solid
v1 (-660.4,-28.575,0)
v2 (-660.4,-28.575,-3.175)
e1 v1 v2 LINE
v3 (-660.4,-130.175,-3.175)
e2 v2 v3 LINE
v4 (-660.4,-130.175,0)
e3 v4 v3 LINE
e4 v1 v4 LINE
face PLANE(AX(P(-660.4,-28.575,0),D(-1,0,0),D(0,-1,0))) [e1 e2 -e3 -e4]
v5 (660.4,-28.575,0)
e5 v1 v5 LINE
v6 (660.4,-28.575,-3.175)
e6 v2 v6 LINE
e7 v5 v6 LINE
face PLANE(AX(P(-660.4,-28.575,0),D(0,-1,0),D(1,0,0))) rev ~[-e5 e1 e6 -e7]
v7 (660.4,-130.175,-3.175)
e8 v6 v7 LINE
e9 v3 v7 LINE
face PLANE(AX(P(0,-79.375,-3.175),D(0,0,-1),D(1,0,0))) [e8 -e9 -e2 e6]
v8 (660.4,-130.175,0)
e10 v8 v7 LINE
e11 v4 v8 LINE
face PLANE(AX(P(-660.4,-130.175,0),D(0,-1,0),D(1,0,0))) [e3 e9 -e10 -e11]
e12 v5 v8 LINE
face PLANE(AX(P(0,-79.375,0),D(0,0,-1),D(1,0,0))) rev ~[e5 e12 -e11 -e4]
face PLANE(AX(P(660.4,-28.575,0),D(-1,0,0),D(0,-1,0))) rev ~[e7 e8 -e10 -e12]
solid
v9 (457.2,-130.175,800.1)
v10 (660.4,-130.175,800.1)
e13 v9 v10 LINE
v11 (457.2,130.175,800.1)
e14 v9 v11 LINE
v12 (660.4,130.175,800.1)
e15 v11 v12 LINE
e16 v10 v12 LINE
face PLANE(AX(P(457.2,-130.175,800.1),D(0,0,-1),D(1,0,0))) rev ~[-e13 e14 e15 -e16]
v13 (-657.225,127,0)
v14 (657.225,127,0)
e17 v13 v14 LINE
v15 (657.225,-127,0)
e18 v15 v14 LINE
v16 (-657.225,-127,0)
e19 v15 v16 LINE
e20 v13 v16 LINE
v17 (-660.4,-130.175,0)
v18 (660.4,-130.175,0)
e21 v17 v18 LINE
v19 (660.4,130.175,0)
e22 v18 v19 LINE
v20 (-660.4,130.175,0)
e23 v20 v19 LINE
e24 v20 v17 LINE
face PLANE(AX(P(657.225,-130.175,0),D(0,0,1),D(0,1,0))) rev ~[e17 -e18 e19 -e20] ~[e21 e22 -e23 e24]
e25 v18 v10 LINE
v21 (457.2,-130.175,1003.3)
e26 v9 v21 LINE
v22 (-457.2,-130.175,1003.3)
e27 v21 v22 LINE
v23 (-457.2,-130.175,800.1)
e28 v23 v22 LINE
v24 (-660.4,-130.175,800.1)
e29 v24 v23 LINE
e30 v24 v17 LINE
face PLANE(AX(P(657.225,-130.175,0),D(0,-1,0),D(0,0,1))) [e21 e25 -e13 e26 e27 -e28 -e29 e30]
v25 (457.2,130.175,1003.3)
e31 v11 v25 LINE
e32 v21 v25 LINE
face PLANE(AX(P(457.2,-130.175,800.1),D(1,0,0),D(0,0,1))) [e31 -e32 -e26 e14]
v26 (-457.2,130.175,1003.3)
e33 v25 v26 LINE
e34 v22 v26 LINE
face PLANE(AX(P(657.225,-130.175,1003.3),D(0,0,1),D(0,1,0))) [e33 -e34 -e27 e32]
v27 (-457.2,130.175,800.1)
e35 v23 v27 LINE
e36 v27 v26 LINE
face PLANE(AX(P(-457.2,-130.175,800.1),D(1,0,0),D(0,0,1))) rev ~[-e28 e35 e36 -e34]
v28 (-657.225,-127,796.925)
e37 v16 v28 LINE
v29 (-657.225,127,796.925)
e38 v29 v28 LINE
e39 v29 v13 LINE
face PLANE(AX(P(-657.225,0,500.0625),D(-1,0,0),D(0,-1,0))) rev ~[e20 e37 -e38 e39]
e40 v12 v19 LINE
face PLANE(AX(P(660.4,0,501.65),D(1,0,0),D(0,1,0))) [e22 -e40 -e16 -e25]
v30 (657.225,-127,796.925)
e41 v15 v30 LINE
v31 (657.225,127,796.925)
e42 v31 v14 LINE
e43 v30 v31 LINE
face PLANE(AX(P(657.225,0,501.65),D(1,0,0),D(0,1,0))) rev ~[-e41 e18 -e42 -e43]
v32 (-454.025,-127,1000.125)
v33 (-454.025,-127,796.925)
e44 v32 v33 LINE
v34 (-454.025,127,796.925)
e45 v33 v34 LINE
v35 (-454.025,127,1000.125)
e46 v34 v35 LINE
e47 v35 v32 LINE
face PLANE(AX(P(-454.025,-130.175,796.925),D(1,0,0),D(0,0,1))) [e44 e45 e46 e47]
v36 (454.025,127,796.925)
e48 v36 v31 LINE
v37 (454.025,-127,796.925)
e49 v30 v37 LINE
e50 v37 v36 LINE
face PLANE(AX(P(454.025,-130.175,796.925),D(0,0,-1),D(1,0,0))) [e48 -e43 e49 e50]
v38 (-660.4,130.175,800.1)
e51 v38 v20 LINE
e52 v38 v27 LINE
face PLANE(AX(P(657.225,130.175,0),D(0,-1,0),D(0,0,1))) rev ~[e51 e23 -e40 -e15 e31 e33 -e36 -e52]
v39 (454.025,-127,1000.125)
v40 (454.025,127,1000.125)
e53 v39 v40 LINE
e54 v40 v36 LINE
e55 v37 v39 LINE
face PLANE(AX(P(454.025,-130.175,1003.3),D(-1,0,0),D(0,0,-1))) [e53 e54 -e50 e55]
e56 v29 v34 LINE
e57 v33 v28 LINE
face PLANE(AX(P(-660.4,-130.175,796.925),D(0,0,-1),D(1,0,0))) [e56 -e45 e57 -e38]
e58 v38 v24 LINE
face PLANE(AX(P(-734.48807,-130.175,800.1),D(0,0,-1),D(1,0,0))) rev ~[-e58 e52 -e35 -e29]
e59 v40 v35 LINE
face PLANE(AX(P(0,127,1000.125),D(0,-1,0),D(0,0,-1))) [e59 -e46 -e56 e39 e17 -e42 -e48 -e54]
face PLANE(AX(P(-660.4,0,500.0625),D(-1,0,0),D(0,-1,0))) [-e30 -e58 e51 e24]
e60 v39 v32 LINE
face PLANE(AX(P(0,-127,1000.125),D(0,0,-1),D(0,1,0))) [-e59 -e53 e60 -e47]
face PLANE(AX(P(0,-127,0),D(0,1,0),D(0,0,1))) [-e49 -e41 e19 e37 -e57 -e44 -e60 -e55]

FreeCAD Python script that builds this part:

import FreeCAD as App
import Part
import Sketcher

V = App.Vector
Q = App.Units.Quantity


def add_polygon(sketch, points):
    """Adds a closed chain of lines whose ends are joined by coincident constraints."""
    first, n = sketch.GeometryCount, len(points)
    for a, b in zip(points, points[1:] + points[:1]):
        sketch.addGeometry(Part.LineSegment(App.Vector(*a, 0), App.Vector(*b, 0)), False)
    for i in range(n):
        sketch.addConstraint(Sketcher.Constraint("Coincident", first + i, 2, first + (i + 1) % n, 1))

doc = App.newDocument("Part")
body = doc.addObject("PartDesign::Body", "Body")

# Sketch on YZ plane
sketch1 = body.newObject("Sketcher::SketchObject", "Sketch")
sketch1.AttachmentSupport = (doc.getObject("YZ_Plane"), [""])
sketch1.MapMode = "FlatFace"
add_polygon(sketch1, [(127, 1000.1), (127, 0), (130.2, 0), (130.2, 1003.3), (-130.2, 1003.3), (-130.2, 0), (-127, 0), (-127, 1000.1)])  # lines 0-7
sketch1.addConstraint(Sketcher.Constraint("Vertical", 0))
sketch1.addConstraint(Sketcher.Constraint("Horizontal", 1))
sketch1.addConstraint(Sketcher.Constraint("Vertical", 2))
sketch1.addConstraint(Sketcher.Constraint("Horizontal", 3))
sketch1.addConstraint(Sketcher.Constraint("Vertical", 4))
sketch1.addConstraint(Sketcher.Constraint("Horizontal", 5))
sketch1.addConstraint(Sketcher.Constraint("Vertical", 6))
sketch1.addConstraint(Sketcher.Constraint("Horizontal", 7))
sketch1.addConstraint(Sketcher.Constraint("Symmetric", 1, 2, 4, 2, -1, 1))
sketch1.addConstraint(Sketcher.Constraint("Symmetric", 0, 2, 5, 2, -2))
sketch1.addConstraint(Sketcher.Constraint("DistanceX", 7, 1, 7, 2, Q("10 in")))
sketch1.addConstraint(Sketcher.Constraint("DistanceY", 2, 1, 2, 2, Q("39.5 in")))
sketch1.addConstraint(Sketcher.Constraint("DistanceX", 3, 2, 3, 1, Q("10.25 in")))
sketch1.addConstraint(Sketcher.Constraint("DistanceY", 0, 2, 0, 1, Q("39.375 in")))
pad1 = body.newObject("PartDesign::Pad", "Pad")
pad1.Profile = sketch1
pad1.Length = Q("51.75 in")
pad1.Midplane = True

# Sketch on YZ plane
sketch2 = body.newObject("Sketcher::SketchObject", "Sketch001")
sketch2.AttachmentSupport = (doc.getObject("YZ_Plane"), [""])
sketch2.MapMode = "FlatFace"
sketch2.AttachmentOffset = App.Placement(V(0, 0, -25.875 * 25.4), App.Rotation())
add_polygon(sketch2, [(-130, 0), (-130, 1003), (130, 1003), (130, 0)])  # lines 0-3
sketch2.addConstraint(Sketcher.Constraint("Vertical", 0))
sketch2.addConstraint(Sketcher.Constraint("Horizontal", 1))
sketch2.addConstraint(Sketcher.Constraint("Vertical", 2))
sketch2.addConstraint(Sketcher.Constraint("Horizontal", 3))
sketch2.addConstraint(Sketcher.Constraint("Symmetric", 2, 2, 3, 2, -1, 1))
sketch2.addConstraint(Sketcher.Constraint("DistanceY", 0, 1, 0, 2, Q("39.5 in")))
sketch2.addConstraint(Sketcher.Constraint("DistanceX", 1, 1, 1, 2, Q("10.25 in")))
pad2 = body.newObject("PartDesign::Pad", "Pad001")
pad2.Profile = sketch2
pad2.Length = Q("0.125 in")
pad2.Reversed = True

# Sketch on YZ plane
sketch3 = body.newObject("Sketcher::SketchObject", "Sketch002")
sketch3.AttachmentSupport = (doc.getObject("YZ_Plane"), [""])
sketch3.MapMode = "FlatFace"
sketch3.AttachmentOffset = App.Placement(V(0, 0, 25.875 * 25.4), App.Rotation())
add_polygon(sketch3, [(-130, 1003), (-130, 0), (130, 0), (130, 1003)])  # lines 0-3
sketch3.addConstraint(Sketcher.Constraint("Vertical", 0))
sketch3.addConstraint(Sketcher.Constraint("Horizontal", 1))
sketch3.addConstraint(Sketcher.Constraint("Vertical", 2))
sketch3.addConstraint(Sketcher.Constraint("Horizontal", 3))
sketch3.addConstraint(Sketcher.Constraint("Symmetric", 0, 2, 1, 2, -1, 1))
sketch3.addConstraint(Sketcher.Constraint("DistanceY", 0, 2, 0, 1, Q("39.5 in")))
sketch3.addConstraint(Sketcher.Constraint("DistanceX", 1, 1, 1, 2, Q("10.25 in")))
pad3 = body.newObject("PartDesign::Pad", "Pad002")
pad3.Profile = sketch3
pad3.Length = Q("0.125 in")

# Sketch on XZ plane
sketch4 = body.newObject("Sketcher::SketchObject", "Sketch003")
sketch4.AttachmentSupport = (doc.getObject("XZ_Plane"), [""])
sketch4.MapMode = "FlatFace"
sketch4.AttachmentOffset = App.Placement(V(0, 0, 5.125 * 25.4), App.Rotation())
add_polygon(sketch4, [(-734, 1046), (-734, 800), (-457, 800), (-457, 1046)])  # lines 0-3
add_polygon(sketch4, [(457, 1046), (457, 800), (847, 800), (847, 1046)])  # lines 4-7
sketch4.addConstraint(Sketcher.Constraint("Vertical", 0))
sketch4.addConstraint(Sketcher.Constraint("Horizontal", 1))
sketch4.addConstraint(Sketcher.Constraint("Vertical", 2))
sketch4.addConstraint(Sketcher.Constraint("Horizontal", 3))
sketch4.addConstraint(Sketcher.Constraint("Vertical", 4))
sketch4.addConstraint(Sketcher.Constraint("Horizontal", 5))
sketch4.addConstraint(Sketcher.Constraint("Vertical", 6))
sketch4.addConstraint(Sketcher.Constraint("Horizontal", 7))
sketch4.addConstraint(Sketcher.Constraint("Symmetric", 1, 2, 4, 2, -2))
sketch4.addConstraint(Sketcher.Constraint("Horizontal", 3, 2, 6, 2))
sketch4.addConstraint(Sketcher.Constraint("DistanceX", 1, 2, -1, 1, Q("18 in")))
sketch4.addConstraint(Sketcher.Constraint("DistanceY", -1, 1, 0, 2, Q("31.5 in")))
sketch4.addConstraint(Sketcher.Constraint("DistanceX", 1, 1, 1, 2, 277.28807))
sketch4.addConstraint(Sketcher.Constraint("DistanceX", 5, 1, 5, 2, 389.810111))
sketch4.addConstraint(Sketcher.Constraint("DistanceY", 0, 2, 0, 1, 246.129019))
pocket1 = body.newObject("PartDesign::Pocket", "Pocket")
pocket1.Profile = sketch4
pocket1.Type = "ThroughAll"

# Sketch on XZ plane
sketch5 = body.newObject("Sketcher::SketchObject", "Sketch004")
sketch5.AttachmentSupport = (doc.getObject("XZ_Plane"), [""])
sketch5.MapMode = "FlatFace"
sketch5.AttachmentOffset = App.Placement(V(0, 0, 5.125 * 25.4), App.Rotation())
add_polygon(sketch5, [(-660.4, 800.1), (-660.4, 796.9), (-454, 796.9), (-454, 1003.3), (-457.2, 1003.3), (-457.2, 800.1)])  # lines 0-5
add_polygon(sketch5, [(454, 1003.3), (454, 796.9), (660.4, 796.9), (660.4, 800.1), (457.2, 800.1), (457.2, 1003.3)])  # lines 6-11
sketch5.addConstraint(Sketcher.Constraint("Vertical", 0))
sketch5.addConstraint(Sketcher.Constraint("Horizontal", 1))
sketch5.addConstraint(Sketcher.Constraint("Vertical", 2))
sketch5.addConstraint(Sketcher.Constraint("Horizontal", 3))
sketch5.addConstraint(Sketcher.Constraint("Vertical", 4))
sketch5.addConstraint(Sketcher.Constraint("Horizontal", 5))
sketch5.addConstraint(Sketcher.Constraint("Vertical", 6))
sketch5.addConstraint(Sketcher.Constraint("Horizontal", 7))
sketch5.addConstraint(Sketcher.Constraint("Vertical", 8))
sketch5.addConstraint(Sketcher.Constraint("Horizontal", 9))
sketch5.addConstraint(Sketcher.Constraint("Vertical", 10))
sketch5.addConstraint(Sketcher.Constraint("Horizontal", 11))
sketch5.addConstraint(Sketcher.Constraint("Symmetric", 1, 2, 6, 2, -2))
sketch5.addConstraint(Sketcher.Constraint("Symmetric", 5, 2, 8, 2, -2))
sketch5.addConstraint(Sketcher.Constraint("Symmetric", 3, 2, 10, 2, -2))
sketch5.addConstraint(Sketcher.Constraint("Equal", 11, 0))
sketch5.addConstraint(Sketcher.Constraint("Equal", 7, 2))
sketch5.addConstraint(Sketcher.Constraint("DistanceX", 5, 2, 5, 1, Q("8 in")))
sketch5.addConstraint(Sketcher.Constraint("DistanceX", 0, 2, -1, 1, Q("26 in")))
sketch5.addConstraint(Sketcher.Constraint("DistanceY", -1, 1, 2, 2, Q("39.5 in")))
sketch5.addConstraint(Sketcher.Constraint("DistanceX", 1, 1, 1, 2, Q("8.125 in")))
pad4 = body.newObject("PartDesign::Pad", "Pad003")
pad4.Profile = sketch5
pad4.Type = "UpToLast"
pad4.Reversed = True
body2 = doc.addObject("PartDesign::Body", "Body001")

# Sketch on XY plane
sketch6 = body2.newObject("Sketcher::SketchObject", "Sketch005")
sketch6.AttachmentSupport = (doc.getObject("XY_Plane001"), [""])
sketch6.MapMode = "FlatFace"
add_polygon(sketch6, [(-660, -130), (-660, -29), (660, -29), (660, -130)])  # lines 0-3
sketch6.addConstraint(Sketcher.Constraint("Vertical", 0))
sketch6.addConstraint(Sketcher.Constraint("Horizontal", 1))
sketch6.addConstraint(Sketcher.Constraint("Vertical", 2))
sketch6.addConstraint(Sketcher.Constraint("Horizontal", 3))
sketch6.addConstraint(Sketcher.Constraint("DistanceX", 1, 1, 1, 2, Q("52 in")))
sketch6.addConstraint(Sketcher.Constraint("DistanceY", 0, 1, 0, 2, Q("4 in")))
sketch6.addConstraint(Sketcher.Constraint("DistanceX", 0, 2, -1, 1, Q("26 in")))
sketch6.addConstraint(Sketcher.Constraint("DistanceY", 0, 2, -1, 1, Q("1.125 in")))
pad5 = body2.newObject("PartDesign::Pad", "Pad004")
pad5.Profile = sketch6
pad5.Length = Q("0.125 in")
pad5.Reversed = True

doc.recompute()
